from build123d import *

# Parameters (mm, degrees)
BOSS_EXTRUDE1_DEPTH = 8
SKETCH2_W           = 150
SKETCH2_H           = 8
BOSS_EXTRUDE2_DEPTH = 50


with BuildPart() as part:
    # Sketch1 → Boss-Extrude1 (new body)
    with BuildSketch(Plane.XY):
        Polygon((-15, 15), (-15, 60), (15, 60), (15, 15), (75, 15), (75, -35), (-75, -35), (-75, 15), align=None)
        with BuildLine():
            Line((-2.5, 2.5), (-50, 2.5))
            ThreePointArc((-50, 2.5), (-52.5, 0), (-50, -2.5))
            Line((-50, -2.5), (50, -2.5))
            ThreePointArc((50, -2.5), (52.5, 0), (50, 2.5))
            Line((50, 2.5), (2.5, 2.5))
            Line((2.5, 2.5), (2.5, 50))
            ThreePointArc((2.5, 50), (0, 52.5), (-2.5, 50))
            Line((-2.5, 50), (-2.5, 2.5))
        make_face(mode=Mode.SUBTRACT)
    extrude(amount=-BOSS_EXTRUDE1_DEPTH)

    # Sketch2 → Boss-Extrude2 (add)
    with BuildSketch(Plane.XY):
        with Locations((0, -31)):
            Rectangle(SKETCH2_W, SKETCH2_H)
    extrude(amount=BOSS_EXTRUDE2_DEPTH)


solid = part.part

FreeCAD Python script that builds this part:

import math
import FreeCAD as App
import Part
import Sketcher
Q = App.Units.Quantity

doc = App.newDocument("Part")
body = doc.addObject("PartDesign::Body", "Body")

# Sketch on XY plane
sketch1 = body.newObject("Sketcher::SketchObject", "Sketch")
sketch1.AttachmentSupport = (doc.getObject("XY_Plane"), [""])
sketch1.MapMode = "FlatFace"
sketch1.addGeometry(Part.LineSegment(App.Vector(-15, 60, 0), App.Vector(-15, 15, 0)), False)
sketch1.addGeometry(Part.LineSegment(App.Vector(-15, 15, 0), App.Vector(-75, 15, 0)), False)
sketch1.addGeometry(Part.LineSegment(App.Vector(-75, 15, 0), App.Vector(-75, -35, 0)), False)
sketch1.addGeometry(Part.LineSegment(App.Vector(-75, -35, 0), App.Vector(75, -35, 0)), False)
sketch1.addGeometry(Part.LineSegment(App.Vector(75, -35, 0), App.Vector(75, 15, 0)), False)
sketch1.addGeometry(Part.LineSegment(App.Vector(75, 15, 0), App.Vector(15, 15, 0)), False)
sketch1.addGeometry(Part.LineSegment(App.Vector(15, 15, 0), App.Vector(15, 60, 0)), False)
sketch1.addGeometry(Part.LineSegment(App.Vector(15, 60, 0), App.Vector(-15, 60, 0)), False)
sketch1.addGeometry(Part.LineSegment(App.Vector(-2.5, 2.5, 0), App.Vector(-2.5, 50, 0)), False)
sketch1.addGeometry(Part.ArcOfCircle(Part.Circle(App.Vector(0, 50, 0), App.Vector(0, 0, 1), 2.5), math.radians(0), math.radians(180)), False)
sketch1.addGeometry(Part.LineSegment(App.Vector(2.5, 50, 0), App.Vector(2.5, 2.5, 0)), False)
sketch1.addGeometry(Part.LineSegment(App.Vector(2.5, 2.5, 0), App.Vector(50, 2.5, 0)), False)
sketch1.addGeometry(Part.ArcOfCircle(Part.Circle(App.Vector(50, 0, 0), App.Vector(0, 0, 1), 2.5), math.radians(-90), math.radians(90)), False)
sketch1.addGeometry(Part.LineSegment(App.Vector(50, -2.5, 0), App.Vector(-50, -2.5, 0)), False)
sketch1.addGeometry(Part.ArcOfCircle(Part.Circle(App.Vector(-50, 0, 0), App.Vector(0, 0, 1), 2.5), math.radians(90), math.radians(270)), False)
sketch1.addGeometry(Part.LineSegment(App.Vector(-50, 2.5, 0), App.Vector(-2.5, 2.5, 0)), False)
sketch1.addConstraint(Sketcher.Constraint("Coincident", 0, 2, 1, 1))
sketch1.addConstraint(Sketcher.Constraint("Coincident", 1, 2, 2, 1))
sketch1.addConstraint(Sketcher.Constraint("Coincident", 2, 2, 3, 1))
sketch1.addConstraint(Sketcher.Constraint("Coincident", 3, 2, 4, 1))
sketch1.addConstraint(Sketcher.Constraint("Coincident", 4, 2, 5, 1))
sketch1.addConstraint(Sketcher.Constraint("Coincident", 5, 2, 6, 1))
sketch1.addConstraint(Sketcher.Constraint("Coincident", 6, 2, 7, 1))
sketch1.addConstraint(Sketcher.Constraint("Coincident", 7, 2, 0, 1))
sketch1.addConstraint(Sketcher.Constraint("Tangent", 8, 2, 9, 2))
sketch1.addConstraint(Sketcher.Constraint("Tangent", 9, 1, 10, 1))
sketch1.addConstraint(Sketcher.Constraint("Coincident", 10, 2, 11, 1))
sketch1.addConstraint(Sketcher.Constraint("Tangent", 11, 2, 12, 2))
sketch1.addConstraint(Sketcher.Constraint("Tangent", 12, 1, 13, 1))
sketch1.addConstraint(Sketcher.Constraint("Tangent", 13, 2, 14, 2))
sketch1.addConstraint(Sketcher.Constraint("Tangent", 14, 1, 15, 1))
sketch1.addConstraint(Sketcher.Constraint("Coincident", 15, 2, 8, 1))
sketch1.addConstraint(Sketcher.Constraint("Vertical", 0))
sketch1.addConstraint(Sketcher.Constraint("Horizontal", 1))
sketch1.addConstraint(Sketcher.Constraint("Vertical", 2))
sketch1.addConstraint(Sketcher.Constraint("Horizontal", 3))
sketch1.addConstraint(Sketcher.Constraint("Vertical", 4))
sketch1.addConstraint(Sketcher.Constraint("Horizontal", 5))
sketch1.addConstraint(Sketcher.Constraint("Vertical", 6))
sketch1.addConstraint(Sketcher.Constraint("Horizontal", 7))
sketch1.addConstraint(Sketcher.Constraint("Vertical", 8))
sketch1.addConstraint(Sketcher.Constraint("Vertical", 10))
sketch1.addConstraint(Sketcher.Constraint("Horizontal", 11))
sketch1.addConstraint(Sketcher.Constraint("Horizontal", 13))
sketch1.addConstraint(Sketcher.Constraint("Horizontal", 15))
sketch1.addConstraint(Sketcher.Constraint("Equal", 9, 12))
sketch1.addConstraint(Sketcher.Constraint("Equal", 12, 14))
sketch1.addConstraint(Sketcher.Constraint("Symmetric", 12, 3, 14, 3, -1, 1))
sketch1.addConstraint(Sketcher.Constraint("Symmetric", 1, 2, 4, 2, -2))
sketch1.addConstraint(Sketcher.Constraint("PointOnObject", 9, 3, -2))
sketch1.addConstraint(Sketcher.Constraint("Equal", 1, 5))
sketch1.addConstraint(Sketcher.Constraint("Equal", 15, 8))
sketch1.addConstraint(Sketcher.Constraint("Radius", 9, Q("2.5 mm")))
sketch1.addConstraint(Sketcher.Constraint("DistanceX", 1, 2, 1, 1, Q("60 mm")))
sketch1.addConstraint(Sketcher.Constraint("DistanceX", 3, 1, 3, 2, Q("150 mm")))
sketch1.addConstraint(Sketcher.Constraint("DistanceX", 13, 2, 13, 1, Q("100 mm")))
sketch1.addConstraint(Sketcher.Constraint("DistanceY", 0, 2, 0, 1, Q("45 mm")))
sketch1.addConstraint(Sketcher.Constraint("DistanceY", 2, 2, 2, 1, Q("50 mm")))
sketch1.addConstraint(Sketcher.Constraint("DistanceY", -1, 1, 0, 2, Q("15 mm")))
pad1 = body.newObject("PartDesign::Pad", "Pad")
pad1.Profile = sketch1
pad1.Length = 8
pad1.Reversed = True

# Sketch on XY plane
sketch2 = body.newObject("Sketcher::SketchObject", "Sketch001")
sketch2.AttachmentSupport = (doc.getObject("XY_Plane"), [""])
sketch2.MapMode = "FlatFace"
sketch2.addGeometry(Part.LineSegment(App.Vector(-75, -27, 0), App.Vector(-75, -35, 0)), False)
sketch2.addGeometry(Part.LineSegment(App.Vector(-75, -35, 0), App.Vector(75, -35, 0)), False)
sketch2.addGeometry(Part.LineSegment(App.Vector(75, -35, 0), App.Vector(75, -27, 0)), False)
sketch2.addGeometry(Part.LineSegment(App.Vector(75, -27, 0), App.Vector(-75, -27, 0)), False)
sketch2.addConstraint(Sketcher.Constraint("Coincident", 0, 2, 1, 1))
sketch2.addConstraint(Sketcher.Constraint("Coincident", 1, 2, 2, 1))
sketch2.addConstraint(Sketcher.Constraint("Coincident", 2, 2, 3, 1))
sketch2.addConstraint(Sketcher.Constraint("Coincident", 3, 2, 0, 1))
sketch2.addConstraint(Sketcher.Constraint("Vertical", 0))
sketch2.addConstraint(Sketcher.Constraint("Horizontal", 1))
sketch2.addConstraint(Sketcher.Constraint("Vertical", 2))
sketch2.addConstraint(Sketcher.Constraint("Horizontal", 3))
sketch2.addConstraint(Sketcher.Constraint("DistanceX", 1, 1, 1, 2, Q("150 mm")))
sketch2.addConstraint(Sketcher.Constraint("DistanceY", 0, 2, 0, 1, Q("8 mm")))
sketch2.addConstraint(Sketcher.Constraint("DistanceX", 0, 2, -1, 1, Q("75 mm")))
sketch2.addConstraint(Sketcher.Constraint("DistanceY", 0, 2, -1, 1, Q("35 mm")))
pad2 = body.newObject("PartDesign::Pad", "Pad001")
pad2.Profile = sketch2
pad2.Length = 50

doc.recompute()
